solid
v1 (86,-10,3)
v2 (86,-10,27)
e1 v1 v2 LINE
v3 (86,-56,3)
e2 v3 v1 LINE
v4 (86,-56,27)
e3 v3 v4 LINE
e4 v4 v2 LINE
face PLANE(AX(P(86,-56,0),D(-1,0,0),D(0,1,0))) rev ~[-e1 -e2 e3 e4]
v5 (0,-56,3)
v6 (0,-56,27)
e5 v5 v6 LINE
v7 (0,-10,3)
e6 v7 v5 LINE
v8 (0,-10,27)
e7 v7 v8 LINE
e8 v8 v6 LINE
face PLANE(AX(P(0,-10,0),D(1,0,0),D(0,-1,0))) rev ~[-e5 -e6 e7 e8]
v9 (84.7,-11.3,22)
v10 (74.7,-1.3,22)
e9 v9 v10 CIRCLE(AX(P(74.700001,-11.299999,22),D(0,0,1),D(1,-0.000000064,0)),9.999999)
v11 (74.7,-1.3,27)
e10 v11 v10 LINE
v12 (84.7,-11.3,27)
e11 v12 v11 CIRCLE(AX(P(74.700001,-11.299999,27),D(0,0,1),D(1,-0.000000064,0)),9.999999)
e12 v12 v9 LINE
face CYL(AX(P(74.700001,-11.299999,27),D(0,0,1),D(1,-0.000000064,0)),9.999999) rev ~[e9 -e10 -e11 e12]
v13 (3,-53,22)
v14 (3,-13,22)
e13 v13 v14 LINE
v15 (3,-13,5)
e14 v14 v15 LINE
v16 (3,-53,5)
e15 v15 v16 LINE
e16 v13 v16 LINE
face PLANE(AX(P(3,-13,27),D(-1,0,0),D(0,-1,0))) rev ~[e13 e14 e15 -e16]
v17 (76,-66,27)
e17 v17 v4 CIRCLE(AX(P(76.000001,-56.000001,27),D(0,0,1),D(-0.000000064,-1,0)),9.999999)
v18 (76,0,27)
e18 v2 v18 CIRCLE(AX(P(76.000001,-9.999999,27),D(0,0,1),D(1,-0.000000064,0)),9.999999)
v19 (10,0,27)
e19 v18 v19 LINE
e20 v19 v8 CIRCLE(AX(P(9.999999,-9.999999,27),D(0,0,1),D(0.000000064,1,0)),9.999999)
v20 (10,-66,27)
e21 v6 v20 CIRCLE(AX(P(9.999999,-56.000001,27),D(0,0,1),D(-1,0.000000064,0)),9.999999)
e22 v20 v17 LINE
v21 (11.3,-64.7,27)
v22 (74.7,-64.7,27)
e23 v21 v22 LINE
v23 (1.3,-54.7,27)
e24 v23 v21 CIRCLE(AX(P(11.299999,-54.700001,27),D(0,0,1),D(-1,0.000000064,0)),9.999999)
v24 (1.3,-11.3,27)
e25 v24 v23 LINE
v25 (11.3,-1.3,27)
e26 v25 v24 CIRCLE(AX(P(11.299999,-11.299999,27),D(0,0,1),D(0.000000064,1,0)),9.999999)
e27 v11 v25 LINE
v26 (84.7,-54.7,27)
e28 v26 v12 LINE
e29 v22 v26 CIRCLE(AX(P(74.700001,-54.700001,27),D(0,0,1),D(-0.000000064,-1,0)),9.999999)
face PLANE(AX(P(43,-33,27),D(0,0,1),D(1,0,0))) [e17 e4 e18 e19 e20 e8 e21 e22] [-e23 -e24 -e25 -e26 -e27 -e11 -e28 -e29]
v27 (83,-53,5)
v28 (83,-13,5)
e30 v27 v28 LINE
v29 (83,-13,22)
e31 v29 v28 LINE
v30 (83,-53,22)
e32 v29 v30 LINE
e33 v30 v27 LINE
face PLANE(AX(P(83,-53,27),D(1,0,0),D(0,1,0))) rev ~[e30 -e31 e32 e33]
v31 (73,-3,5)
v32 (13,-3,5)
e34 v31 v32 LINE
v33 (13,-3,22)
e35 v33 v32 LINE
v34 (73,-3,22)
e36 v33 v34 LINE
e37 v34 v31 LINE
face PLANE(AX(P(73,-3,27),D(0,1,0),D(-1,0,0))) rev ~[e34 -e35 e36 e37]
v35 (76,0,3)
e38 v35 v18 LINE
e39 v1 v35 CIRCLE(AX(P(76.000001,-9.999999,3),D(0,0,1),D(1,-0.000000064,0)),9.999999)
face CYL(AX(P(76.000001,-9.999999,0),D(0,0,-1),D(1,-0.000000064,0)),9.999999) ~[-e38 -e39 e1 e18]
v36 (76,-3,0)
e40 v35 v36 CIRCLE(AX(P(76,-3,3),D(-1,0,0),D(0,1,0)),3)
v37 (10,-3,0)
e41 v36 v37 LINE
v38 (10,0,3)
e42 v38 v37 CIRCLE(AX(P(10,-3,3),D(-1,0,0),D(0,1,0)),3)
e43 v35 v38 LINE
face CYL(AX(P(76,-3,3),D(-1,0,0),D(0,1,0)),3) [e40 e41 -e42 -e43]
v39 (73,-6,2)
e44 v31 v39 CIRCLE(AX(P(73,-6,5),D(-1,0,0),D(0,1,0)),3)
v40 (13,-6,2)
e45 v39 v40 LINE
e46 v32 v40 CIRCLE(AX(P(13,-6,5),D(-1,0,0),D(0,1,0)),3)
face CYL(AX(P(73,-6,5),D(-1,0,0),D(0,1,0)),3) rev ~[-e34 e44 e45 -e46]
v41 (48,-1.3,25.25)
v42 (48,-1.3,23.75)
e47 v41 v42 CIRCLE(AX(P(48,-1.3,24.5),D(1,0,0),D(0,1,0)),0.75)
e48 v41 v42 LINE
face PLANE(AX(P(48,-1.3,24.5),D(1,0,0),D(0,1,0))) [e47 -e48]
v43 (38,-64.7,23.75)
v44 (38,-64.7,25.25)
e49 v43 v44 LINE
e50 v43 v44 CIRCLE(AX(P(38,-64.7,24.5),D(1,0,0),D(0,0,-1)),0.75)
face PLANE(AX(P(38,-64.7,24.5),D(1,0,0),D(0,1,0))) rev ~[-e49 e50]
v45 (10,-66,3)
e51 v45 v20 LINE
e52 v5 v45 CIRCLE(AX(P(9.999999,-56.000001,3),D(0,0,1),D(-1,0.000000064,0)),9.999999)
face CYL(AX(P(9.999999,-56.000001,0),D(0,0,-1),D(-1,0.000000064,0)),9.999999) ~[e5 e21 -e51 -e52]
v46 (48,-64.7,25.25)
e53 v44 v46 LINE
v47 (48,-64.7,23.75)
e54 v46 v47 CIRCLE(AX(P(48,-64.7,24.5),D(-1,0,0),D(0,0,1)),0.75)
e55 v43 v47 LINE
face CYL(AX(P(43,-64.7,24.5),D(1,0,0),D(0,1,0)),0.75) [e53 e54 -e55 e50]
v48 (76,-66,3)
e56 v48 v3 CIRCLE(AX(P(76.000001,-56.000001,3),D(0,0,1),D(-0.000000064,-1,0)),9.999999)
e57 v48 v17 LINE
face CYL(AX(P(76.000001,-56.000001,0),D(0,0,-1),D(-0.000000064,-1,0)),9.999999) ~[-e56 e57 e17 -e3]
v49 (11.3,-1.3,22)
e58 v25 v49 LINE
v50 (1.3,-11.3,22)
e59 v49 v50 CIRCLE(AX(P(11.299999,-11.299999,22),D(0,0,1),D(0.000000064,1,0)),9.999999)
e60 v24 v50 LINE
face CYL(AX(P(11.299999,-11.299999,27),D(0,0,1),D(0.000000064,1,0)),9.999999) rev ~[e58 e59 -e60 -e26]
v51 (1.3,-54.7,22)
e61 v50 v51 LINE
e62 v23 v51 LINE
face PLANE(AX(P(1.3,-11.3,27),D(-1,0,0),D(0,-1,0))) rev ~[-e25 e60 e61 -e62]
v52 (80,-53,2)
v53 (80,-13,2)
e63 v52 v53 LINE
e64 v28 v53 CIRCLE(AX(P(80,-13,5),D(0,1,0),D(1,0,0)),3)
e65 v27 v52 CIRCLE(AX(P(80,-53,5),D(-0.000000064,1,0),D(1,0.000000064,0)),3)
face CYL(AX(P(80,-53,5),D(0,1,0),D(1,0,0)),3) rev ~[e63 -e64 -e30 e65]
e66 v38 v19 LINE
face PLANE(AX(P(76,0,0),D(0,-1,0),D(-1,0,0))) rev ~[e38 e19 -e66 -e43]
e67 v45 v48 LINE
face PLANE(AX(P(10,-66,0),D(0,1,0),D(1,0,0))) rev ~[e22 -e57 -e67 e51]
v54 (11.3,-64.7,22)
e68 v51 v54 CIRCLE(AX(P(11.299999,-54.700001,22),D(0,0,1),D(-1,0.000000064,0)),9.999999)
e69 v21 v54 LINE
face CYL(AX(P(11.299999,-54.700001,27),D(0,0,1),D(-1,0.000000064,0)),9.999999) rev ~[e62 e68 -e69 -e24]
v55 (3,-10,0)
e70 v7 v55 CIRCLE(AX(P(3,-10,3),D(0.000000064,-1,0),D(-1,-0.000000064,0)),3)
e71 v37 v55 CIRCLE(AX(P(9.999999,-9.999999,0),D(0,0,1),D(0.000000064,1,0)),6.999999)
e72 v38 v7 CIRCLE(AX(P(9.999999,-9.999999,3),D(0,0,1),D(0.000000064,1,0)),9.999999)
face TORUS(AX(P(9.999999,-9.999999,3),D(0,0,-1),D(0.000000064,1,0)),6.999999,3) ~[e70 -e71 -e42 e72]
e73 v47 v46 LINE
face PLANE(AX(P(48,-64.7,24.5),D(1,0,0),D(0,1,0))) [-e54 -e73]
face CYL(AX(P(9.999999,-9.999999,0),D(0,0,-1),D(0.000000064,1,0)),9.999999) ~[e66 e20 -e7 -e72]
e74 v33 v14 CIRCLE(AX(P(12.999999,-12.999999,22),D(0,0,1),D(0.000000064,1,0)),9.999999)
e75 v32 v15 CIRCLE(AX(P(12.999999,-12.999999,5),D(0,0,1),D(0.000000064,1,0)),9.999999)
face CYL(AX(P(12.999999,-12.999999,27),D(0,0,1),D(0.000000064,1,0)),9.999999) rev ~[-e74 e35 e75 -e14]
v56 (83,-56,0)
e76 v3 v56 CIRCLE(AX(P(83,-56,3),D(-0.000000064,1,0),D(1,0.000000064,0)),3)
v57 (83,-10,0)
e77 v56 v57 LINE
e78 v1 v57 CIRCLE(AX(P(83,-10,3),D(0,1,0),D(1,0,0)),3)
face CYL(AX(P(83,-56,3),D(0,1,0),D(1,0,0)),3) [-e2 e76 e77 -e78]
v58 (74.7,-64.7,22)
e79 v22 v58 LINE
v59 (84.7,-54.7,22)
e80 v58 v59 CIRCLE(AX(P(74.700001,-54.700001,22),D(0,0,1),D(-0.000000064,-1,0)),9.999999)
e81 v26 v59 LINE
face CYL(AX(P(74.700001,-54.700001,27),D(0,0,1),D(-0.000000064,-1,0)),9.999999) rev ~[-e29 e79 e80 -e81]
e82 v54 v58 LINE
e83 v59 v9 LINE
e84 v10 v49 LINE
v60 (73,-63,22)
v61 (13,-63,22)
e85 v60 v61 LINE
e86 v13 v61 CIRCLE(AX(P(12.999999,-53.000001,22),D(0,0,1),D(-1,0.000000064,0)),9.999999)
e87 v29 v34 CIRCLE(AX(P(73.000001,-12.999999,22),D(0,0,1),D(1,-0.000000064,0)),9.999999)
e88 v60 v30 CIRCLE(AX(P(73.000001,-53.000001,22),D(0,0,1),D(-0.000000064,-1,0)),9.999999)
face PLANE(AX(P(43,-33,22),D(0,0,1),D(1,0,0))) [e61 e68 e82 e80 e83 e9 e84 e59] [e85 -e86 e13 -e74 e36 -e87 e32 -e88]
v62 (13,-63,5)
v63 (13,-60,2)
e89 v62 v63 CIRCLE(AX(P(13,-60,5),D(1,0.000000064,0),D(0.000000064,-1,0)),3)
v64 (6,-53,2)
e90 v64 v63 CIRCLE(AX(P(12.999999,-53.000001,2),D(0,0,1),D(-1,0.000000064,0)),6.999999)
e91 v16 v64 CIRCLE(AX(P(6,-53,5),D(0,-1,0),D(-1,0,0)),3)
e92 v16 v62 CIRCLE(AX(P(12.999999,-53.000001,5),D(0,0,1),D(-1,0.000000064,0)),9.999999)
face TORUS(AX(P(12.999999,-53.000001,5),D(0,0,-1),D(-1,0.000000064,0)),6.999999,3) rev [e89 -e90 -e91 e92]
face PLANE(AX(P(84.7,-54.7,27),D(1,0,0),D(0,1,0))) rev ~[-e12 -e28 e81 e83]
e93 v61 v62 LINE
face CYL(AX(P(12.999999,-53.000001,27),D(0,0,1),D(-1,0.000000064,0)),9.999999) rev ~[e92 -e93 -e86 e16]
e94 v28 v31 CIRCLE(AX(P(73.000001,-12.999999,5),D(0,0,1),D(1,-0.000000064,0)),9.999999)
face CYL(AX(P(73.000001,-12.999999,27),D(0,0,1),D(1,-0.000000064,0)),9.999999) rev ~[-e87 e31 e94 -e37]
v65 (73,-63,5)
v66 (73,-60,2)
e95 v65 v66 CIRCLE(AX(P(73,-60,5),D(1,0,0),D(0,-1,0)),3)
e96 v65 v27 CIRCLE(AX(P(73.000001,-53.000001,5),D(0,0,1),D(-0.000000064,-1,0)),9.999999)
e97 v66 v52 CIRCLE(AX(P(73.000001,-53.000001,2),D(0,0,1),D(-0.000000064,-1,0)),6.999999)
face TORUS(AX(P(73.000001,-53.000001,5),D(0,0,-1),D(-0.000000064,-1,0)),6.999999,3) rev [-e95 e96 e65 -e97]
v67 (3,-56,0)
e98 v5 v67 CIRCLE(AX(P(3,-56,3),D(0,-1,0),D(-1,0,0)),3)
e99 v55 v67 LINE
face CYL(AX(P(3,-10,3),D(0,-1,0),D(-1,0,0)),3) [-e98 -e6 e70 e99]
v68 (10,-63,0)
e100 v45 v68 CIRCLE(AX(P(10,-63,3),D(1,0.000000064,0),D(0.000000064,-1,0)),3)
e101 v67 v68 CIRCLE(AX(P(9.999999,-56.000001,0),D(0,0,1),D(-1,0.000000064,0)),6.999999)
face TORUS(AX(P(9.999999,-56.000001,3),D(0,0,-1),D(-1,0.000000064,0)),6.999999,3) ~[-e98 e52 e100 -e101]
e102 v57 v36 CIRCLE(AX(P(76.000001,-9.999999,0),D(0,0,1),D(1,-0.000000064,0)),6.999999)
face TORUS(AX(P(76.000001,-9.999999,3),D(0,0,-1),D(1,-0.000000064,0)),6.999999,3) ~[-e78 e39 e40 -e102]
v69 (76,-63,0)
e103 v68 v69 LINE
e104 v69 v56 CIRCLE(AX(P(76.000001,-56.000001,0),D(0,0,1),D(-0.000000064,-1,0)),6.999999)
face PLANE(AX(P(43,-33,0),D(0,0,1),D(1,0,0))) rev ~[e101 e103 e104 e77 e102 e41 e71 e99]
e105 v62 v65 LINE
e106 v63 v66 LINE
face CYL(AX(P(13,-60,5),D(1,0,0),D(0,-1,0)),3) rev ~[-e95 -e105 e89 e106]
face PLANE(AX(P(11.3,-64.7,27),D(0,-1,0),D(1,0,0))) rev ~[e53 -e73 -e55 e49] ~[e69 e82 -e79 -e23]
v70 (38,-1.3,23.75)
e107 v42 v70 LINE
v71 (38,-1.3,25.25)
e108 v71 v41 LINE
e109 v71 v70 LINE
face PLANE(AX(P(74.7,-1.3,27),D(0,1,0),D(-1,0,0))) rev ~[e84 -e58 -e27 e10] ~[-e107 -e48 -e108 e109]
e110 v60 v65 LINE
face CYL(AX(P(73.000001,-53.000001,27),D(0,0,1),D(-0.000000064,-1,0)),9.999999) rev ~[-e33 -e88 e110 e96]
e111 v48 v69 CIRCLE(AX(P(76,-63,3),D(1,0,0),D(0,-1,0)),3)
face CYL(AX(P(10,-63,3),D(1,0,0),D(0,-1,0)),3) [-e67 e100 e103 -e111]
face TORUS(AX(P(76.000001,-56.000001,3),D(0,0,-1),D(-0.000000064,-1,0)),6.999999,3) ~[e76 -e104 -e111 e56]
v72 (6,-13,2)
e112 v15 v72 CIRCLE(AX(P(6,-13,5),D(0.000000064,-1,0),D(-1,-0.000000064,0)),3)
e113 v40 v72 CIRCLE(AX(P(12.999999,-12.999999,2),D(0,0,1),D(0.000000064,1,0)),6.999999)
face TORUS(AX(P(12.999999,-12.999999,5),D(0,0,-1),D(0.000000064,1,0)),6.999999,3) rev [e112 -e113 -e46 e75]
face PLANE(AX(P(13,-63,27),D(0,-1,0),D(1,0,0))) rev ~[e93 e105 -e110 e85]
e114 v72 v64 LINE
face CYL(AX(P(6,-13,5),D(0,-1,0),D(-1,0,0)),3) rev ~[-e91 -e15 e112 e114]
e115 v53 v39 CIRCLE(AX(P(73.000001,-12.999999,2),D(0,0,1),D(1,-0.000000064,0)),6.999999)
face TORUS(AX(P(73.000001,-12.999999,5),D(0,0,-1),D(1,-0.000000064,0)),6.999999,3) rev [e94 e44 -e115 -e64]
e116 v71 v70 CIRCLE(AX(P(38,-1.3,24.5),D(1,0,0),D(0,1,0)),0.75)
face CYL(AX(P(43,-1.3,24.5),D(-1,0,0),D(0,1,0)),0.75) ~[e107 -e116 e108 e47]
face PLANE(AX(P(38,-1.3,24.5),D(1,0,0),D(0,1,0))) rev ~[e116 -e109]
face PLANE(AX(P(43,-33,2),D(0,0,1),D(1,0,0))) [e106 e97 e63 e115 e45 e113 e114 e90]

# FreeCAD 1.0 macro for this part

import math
import FreeCAD as App
import Part
import Sketcher


def edges_at(feature, points):
    """Names of the edges that pass closest to the given points."""
    edges = feature.Shape.Edges
    near = lambda p: min(range(len(edges)), key=lambda i: edges[i].distToShape(Part.Vertex(*p))[0])
    return sorted({f"Edge{near(p) + 1}" for p in points})

doc = App.newDocument("Part")
body = doc.addObject("PartDesign::Body", "Body")

# Sketch on XY plane
sketch1 = body.newObject("Sketcher::SketchObject", "Sketch")
sketch1.AttachmentSupport = (doc.getObject("XY_Plane"), [""])
sketch1.MapMode = "FlatFace"
sketch1.addGeometry([
    Part.LineSegment(App.Vector(76, 0, 0), App.Vector(10, 0, 0)),  # 0
    Part.ArcOfCircle(Part.Circle(App.Vector(10, -10, 0), App.Vector(0, 0, 1), 10), math.radians(90), math.radians(180)),  # 1
    Part.LineSegment(App.Vector(0, -10, 0), App.Vector(0, -56, 0)),  # 2
    Part.ArcOfCircle(Part.Circle(App.Vector(10, -56, 0), App.Vector(0, 0, 1), 10), math.radians(180), math.radians(270)),  # 3
    Part.LineSegment(App.Vector(10, -66, 0), App.Vector(76, -66, 0)),  # 4
    Part.ArcOfCircle(Part.Circle(App.Vector(76, -56, 0), App.Vector(0, 0, 1), 10), math.radians(-90), math.radians(0)),  # 5
    Part.LineSegment(App.Vector(86, -56, 0), App.Vector(86, -10, 0)),  # 6
    Part.ArcOfCircle(Part.Circle(App.Vector(76, -10, 0), App.Vector(0, 0, 1), 10), math.radians(0), math.radians(90)),  # 7
], False)
sketch1.addConstraint([
    Sketcher.Constraint("Tangent", 0, 2, 1, 1),
    Sketcher.Constraint("Tangent", 1, 2, 2, 1),
    Sketcher.Constraint("Tangent", 2, 2, 3, 1),
    Sketcher.Constraint("Tangent", 3, 2, 4, 1),
    Sketcher.Constraint("Tangent", 4, 2, 5, 1),
    Sketcher.Constraint("Tangent", 5, 2, 6, 1),
    Sketcher.Constraint("Tangent", 6, 2, 7, 1),
    Sketcher.Constraint("Tangent", 7, 2, 0, 1),
    Sketcher.Constraint("Horizontal", 0),
    Sketcher.Constraint("Vertical", 2),
    Sketcher.Constraint("Horizontal", 4),
    Sketcher.Constraint("Vertical", 6),
    Sketcher.Constraint("Equal", 1, 3),
    Sketcher.Constraint("Equal", 3, 5),
    Sketcher.Constraint("Equal", 5, 7),
    Sketcher.Constraint("PointOnObject", 0, 2, -1),
    Sketcher.Constraint("PointOnObject", 1, 2, -2),
    Sketcher.Constraint("Radius", 1, 9.999999),
    Sketcher.Constraint("DistanceX", 0, 2, 0, 1, 66.0),
    Sketcher.Constraint("DistanceY", 2, 2, 2, 1, 46.0),
])
pad1 = body.newObject("PartDesign::Pad", "Pad")
pad1.Profile = sketch1
pad1.Length = 27

# Sketch on XY plane
sketch2 = body.newObject("Sketcher::SketchObject", "Sketch001")
sketch2.AttachmentSupport = (doc.getObject("XY_Plane"), [""])
sketch2.MapMode = "FlatFace"
sketch2.AttachmentOffset = App.Placement(App.Vector(0, 0, 27), App.Rotation())
sketch2.addGeometry([
    Part.LineSegment(App.Vector(73, -3, 0), App.Vector(13, -3, 0)),  # 0
    Part.ArcOfCircle(Part.Circle(App.Vector(13, -13, 0), App.Vector(0, 0, 1), 10), math.radians(90), math.radians(180)),  # 1
    Part.LineSegment(App.Vector(3, -13, 0), App.Vector(3, -53, 0)),  # 2
    Part.ArcOfCircle(Part.Circle(App.Vector(13, -53, 0), App.Vector(0, 0, 1), 10), math.radians(180), math.radians(270)),  # 3
    Part.LineSegment(App.Vector(13, -63, 0), App.Vector(73, -63, 0)),  # 4
    Part.ArcOfCircle(Part.Circle(App.Vector(73, -53, 0), App.Vector(0, 0, 1), 10), math.radians(-90), math.radians(0)),  # 5
    Part.LineSegment(App.Vector(83, -53, 0), App.Vector(83, -13, 0)),  # 6
    Part.ArcOfCircle(Part.Circle(App.Vector(73, -13, 0), App.Vector(0, 0, 1), 10), math.radians(0), math.radians(90)),  # 7
], False)
sketch2.addConstraint([
    Sketcher.Constraint("Tangent", 0, 2, 1, 1),
    Sketcher.Constraint("Tangent", 1, 2, 2, 1),
    Sketcher.Constraint("Tangent", 2, 2, 3, 1),
    Sketcher.Constraint("Tangent", 3, 2, 4, 1),
    Sketcher.Constraint("Tangent", 4, 2, 5, 1),
    Sketcher.Constraint("Tangent", 5, 2, 6, 1),
    Sketcher.Constraint("Tangent", 6, 2, 7, 1),
    Sketcher.Constraint("Tangent", 7, 2, 0, 1),
    Sketcher.Constraint("Horizontal", 0),
    Sketcher.Constraint("Vertical", 2),
    Sketcher.Constraint("Horizontal", 4),
    Sketcher.Constraint("Vertical", 6),
    Sketcher.Constraint("Equal", 1, 3),
    Sketcher.Constraint("Equal", 3, 5),
    Sketcher.Constraint("Equal", 5, 7),
    Sketcher.Constraint("Radius", 1, 9.999999),
    Sketcher.Constraint("DistanceX", 0, 2, 0, 1, 60.0),
    Sketcher.Constraint("DistanceY", 2, 2, 2, 1, 40.0),
    Sketcher.Constraint("DistanceX", -1, 1, 1, 3, 12.999999),
    Sketcher.Constraint("DistanceY", 1, 3, -1, 1, 12.999999),
])
pocket1 = body.newObject("PartDesign::Pocket", "Pocket")
pocket1.Profile = sketch2
pocket1.Length = 25

# Sketch on XY plane
sketch3 = body.newObject("Sketcher::SketchObject", "Sketch002")
sketch3.AttachmentSupport = (doc.getObject("XY_Plane"), [""])
sketch3.MapMode = "FlatFace"
sketch3.AttachmentOffset = App.Placement(App.Vector(0, 0, 27), App.Rotation())
sketch3.addGeometry([
    Part.LineSegment(App.Vector(75, -1, 0), App.Vector(11, -1, 0)),  # 0
    Part.ArcOfCircle(Part.Circle(App.Vector(11, -11, 0), App.Vector(0, 0, 1), 10), math.radians(90), math.radians(180)),  # 1
    Part.LineSegment(App.Vector(1, -11, 0), App.Vector(1, -55, 0)),  # 2
    Part.ArcOfCircle(Part.Circle(App.Vector(11, -55, 0), App.Vector(0, 0, 1), 10), math.radians(180), math.radians(270)),  # 3
    Part.LineSegment(App.Vector(11, -65, 0), App.Vector(75, -65, 0)),  # 4
    Part.ArcOfCircle(Part.Circle(App.Vector(75, -55, 0), App.Vector(0, 0, 1), 10), math.radians(-90), math.radians(0)),  # 5
    Part.LineSegment(App.Vector(85, -55, 0), App.Vector(85, -11, 0)),  # 6
    Part.ArcOfCircle(Part.Circle(App.Vector(75, -11, 0), App.Vector(0, 0, 1), 10), math.radians(0), math.radians(90)),  # 7
], False)
sketch3.addConstraint([
    Sketcher.Constraint("Tangent", 0, 2, 1, 1),
    Sketcher.Constraint("Tangent", 1, 2, 2, 1),
    Sketcher.Constraint("Tangent", 2, 2, 3, 1),
    Sketcher.Constraint("Tangent", 3, 2, 4, 1),
    Sketcher.Constraint("Tangent", 4, 2, 5, 1),
    Sketcher.Constraint("Tangent", 5, 2, 6, 1),
    Sketcher.Constraint("Tangent", 6, 2, 7, 1),
    Sketcher.Constraint("Tangent", 7, 2, 0, 1),
    Sketcher.Constraint("Horizontal", 0),
    Sketcher.Constraint("Vertical", 2),
    Sketcher.Constraint("Horizontal", 4),
    Sketcher.Constraint("Vertical", 6),
    Sketcher.Constraint("Equal", 1, 3),
    Sketcher.Constraint("Equal", 3, 5),
    Sketcher.Constraint("Equal", 5, 7),
    Sketcher.Constraint("Radius", 1, 9.999999),
    Sketcher.Constraint("DistanceX", 0, 2, 0, 1, 63.4),
    Sketcher.Constraint("DistanceY", 2, 2, 2, 1, 43.4),
    Sketcher.Constraint("DistanceX", -1, 1, 1, 3, 11.299999),
    Sketcher.Constraint("DistanceY", 1, 3, -1, 1, 11.299999),
])
pocket2 = body.newObject("PartDesign::Pocket", "Pocket001")
pocket2.Profile = sketch3
pocket2.Length = 5
doc.recompute()

fillet = body.newObject("PartDesign::Fillet", "Fillet")
fillet.Base = (pocket2, edges_at(pocket2, [
    (43, 0, 0),
    (2.929, -2.929, 0),
    (0, -33, 0),
    (83.071, -2.929, 0),
    (86, -33, 0),
    (83.071, -63.071, 0),
    (43, -66, 0),
    (2.929, -63.071, 0),
]))
fillet.Radius = 3
doc.recompute()

fillet2 = body.newObject("PartDesign::Fillet", "Fillet001")
fillet2.Base = (fillet, edges_at(fillet, [(43, -3, 2)]))
fillet2.Radius = 3

# Sketch on YZ plane
sketch4 = body.newObject("Sketcher::SketchObject", "Sketch003")
sketch4.AttachmentSupport = (doc.getObject("YZ_Plane"), [""])
sketch4.MapMode = "FlatFace"
sketch4.AttachmentOffset = App.Placement(App.Vector(0, 0, 43), App.Rotation())
sketch4.addGeometry([
    Part.Circle(App.Vector(-1.3, 24.5, 0), App.Vector(0, 0, 1), 0.8),
    Part.Circle(App.Vector(-64.7, 24.5, 0), App.Vector(0, 0, 1), 0.8),
], False)
sketch4.addConstraint([
    Sketcher.Constraint("Equal", 0, 1),
    Sketcher.Constraint("Horizontal", 0, 3, 1, 3),
    Sketcher.Constraint("Diameter", 0, 1.5),
    Sketcher.Constraint("DistanceX", 0, 3, -1, 1, 1.3),
    Sketcher.Constraint("DistanceY", -1, 1, 0, 3, 24.5),
    Sketcher.Constraint("DistanceX", 1, 3, -1, 1, 64.7),
])
pad2 = body.newObject("PartDesign::Pad", "Pad001")
pad2.Profile = sketch4
pad2.Length = 10
pad2.Midplane = True

doc.recompute()
